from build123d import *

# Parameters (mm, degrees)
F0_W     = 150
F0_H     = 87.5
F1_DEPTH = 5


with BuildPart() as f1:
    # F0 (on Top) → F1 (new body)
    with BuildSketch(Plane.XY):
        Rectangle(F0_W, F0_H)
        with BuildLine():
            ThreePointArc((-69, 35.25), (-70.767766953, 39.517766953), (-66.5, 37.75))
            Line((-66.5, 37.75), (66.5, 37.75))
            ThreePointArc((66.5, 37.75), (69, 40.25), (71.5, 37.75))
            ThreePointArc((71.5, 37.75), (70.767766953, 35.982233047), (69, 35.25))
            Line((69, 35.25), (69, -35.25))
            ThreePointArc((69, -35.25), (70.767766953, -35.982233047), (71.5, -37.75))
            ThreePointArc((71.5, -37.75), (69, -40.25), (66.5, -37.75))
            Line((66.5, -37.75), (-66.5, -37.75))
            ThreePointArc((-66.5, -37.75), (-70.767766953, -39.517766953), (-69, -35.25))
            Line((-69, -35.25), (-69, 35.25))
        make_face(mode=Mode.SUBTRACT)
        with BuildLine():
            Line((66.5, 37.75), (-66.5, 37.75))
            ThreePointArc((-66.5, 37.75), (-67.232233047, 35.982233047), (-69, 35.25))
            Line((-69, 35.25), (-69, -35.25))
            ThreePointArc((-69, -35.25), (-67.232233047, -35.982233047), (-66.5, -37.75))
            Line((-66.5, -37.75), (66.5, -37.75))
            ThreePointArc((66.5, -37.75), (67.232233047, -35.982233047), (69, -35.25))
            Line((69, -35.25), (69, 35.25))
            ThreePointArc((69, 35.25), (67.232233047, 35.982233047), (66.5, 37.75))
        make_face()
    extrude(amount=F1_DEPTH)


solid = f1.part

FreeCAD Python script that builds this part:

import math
import FreeCAD as App
import Part
import Sketcher
from FreeCAD import Vector
Q = App.Units.Quantity

doc = App.newDocument("Part")
body = doc.addObject("PartDesign::Body", "Body")

# Sketch on XY plane
sketch1 = body.newObject("Sketcher::SketchObject", "Sketch")
sketch1.AttachmentSupport = (doc.getObject("XY_Plane"), [""])
sketch1.MapMode = "FlatFace"
sketch1.addGeometry([
    Part.LineSegment(Vector(-75, 43.8, 0), Vector(-75, -43.8, 0)),  # 0
    Part.LineSegment(Vector(-75, -43.8, 0), Vector(75, -43.8, 0)),  # 1
    Part.LineSegment(Vector(75, -43.8, 0), Vector(75, 43.8, 0)),  # 2
    Part.LineSegment(Vector(75, 43.8, 0), Vector(-75, 43.8, 0)),  # 3
    Part.ArcOfCircle(Part.Circle(Vector(-69, -37.8, 0), Vector(0, 0, 1), 2.5), math.radians(90), math.radians(360)),  # 4
    Part.ArcOfCircle(Part.Circle(Vector(-69, -37.8, 0), Vector(0, 0, 1), 2.5), math.radians(0), math.radians(90)),  # 5
    Part.ArcOfCircle(Part.Circle(Vector(69, -37.8, 0), Vector(0, 0, 1), 2.5), math.radians(180), math.radians(360)),  # 6
    Part.ArcOfCircle(Part.Circle(Vector(69, -37.8, 0), Vector(0, 0, 1), 2.5), math.radians(90), math.radians(180)),  # 7
    Part.ArcOfCircle(Part.Circle(Vector(69, -37.8, 0), Vector(0, 0, 1), 2.5), math.radians(0), math.radians(90)),  # 8
    Part.ArcOfCircle(Part.Circle(Vector(69, 37.8, 0), Vector(0, 0, 1), 2.5), math.radians(-90), math.radians(0)),  # 9
    Part.ArcOfCircle(Part.Circle(Vector(69, 37.8, 0), Vector(0, 0, 1), 2.5), math.radians(180), math.radians(270)),  # 10
    Part.ArcOfCircle(Part.Circle(Vector(69, 37.8, 0), Vector(0, 0, 1), 2.5), math.radians(0), math.radians(180)),  # 11
    Part.ArcOfCircle(Part.Circle(Vector(-69, 37.8, 0), Vector(0, 0, 1), 2.5), math.radians(0), math.radians(270)),  # 12
    Part.ArcOfCircle(Part.Circle(Vector(-69, 37.8, 0), Vector(0, 0, 1), 2.5), math.radians(-90), math.radians(0)),  # 13
], False)
sketch1.addConstraint([
    Sketcher.Constraint("Coincident", 0, 2, 1, 1),
    Sketcher.Constraint("Coincident", 1, 2, 2, 1),
    Sketcher.Constraint("Coincident", 2, 2, 3, 1),
    Sketcher.Constraint("Coincident", 3, 2, 0, 1),
    Sketcher.Constraint("Tangent", 4, 1, 5, 2),
    Sketcher.Constraint("Coincident", 5, 1, 4, 2),
    Sketcher.Constraint("Tangent", 6, 1, 7, 2),
    Sketcher.Constraint("Tangent", 7, 1, 8, 2),
    Sketcher.Constraint("Tangent", 8, 1, 6, 2),
    Sketcher.Constraint("Tangent", 9, 1, 10, 2),
    Sketcher.Constraint("Tangent", 10, 1, 11, 2),
    Sketcher.Constraint("Tangent", 11, 1, 9, 2),
    Sketcher.Constraint("Tangent", 12, 1, 13, 2),
    Sketcher.Constraint("Coincident", 13, 1, 12, 2),
    Sketcher.Constraint("Vertical", 0),
    Sketcher.Constraint("Horizontal", 1),
    Sketcher.Constraint("Vertical", 2),
    Sketcher.Constraint("Horizontal", 3),
    Sketcher.Constraint("Equal", 5, 6),
    Sketcher.Constraint("Equal", 8, 9),
    Sketcher.Constraint("Equal", 11, 12),
    Sketcher.Constraint("Symmetric", 4, 3, 9, 3, -1, 1),
    Sketcher.Constraint("Symmetric", 6, 3, 12, 3, -1, 1),
    Sketcher.Constraint("Symmetric", 0, 2, 2, 2, -1, 1),
    Sketcher.Constraint("Symmetric", 4, 3, 6, 3, -2),
    Sketcher.Constraint("Horizontal", 8, 3, 5, 1),
    Sketcher.Constraint("Horizontal", 5, 1, 6, 1),
    Sketcher.Constraint("Horizontal", 6, 1, 8, 1),
    Sketcher.Constraint("Horizontal", 13, 3, 10, 1),
    Sketcher.Constraint("Horizontal", 10, 1, 11, 1),
    Sketcher.Constraint("Horizontal", 11, 1, 12, 1),
    Sketcher.Constraint("Vertical", 13, 3, 4, 1),
    Sketcher.Constraint("Vertical", 11, 3, 7, 1),
    Sketcher.Constraint("Vertical", 7, 1, 9, 1),
    Sketcher.Constraint("Vertical", 4, 1, 13, 1),
    Sketcher.Constraint("Radius", 4, Q("2.5 mm")),
    Sketcher.Constraint("DistanceX", 1, 1, 1, 2, Q("150 mm")),
    Sketcher.Constraint("DistanceY", 0, 2, 0, 1, Q("87.5 mm")),
    Sketcher.Constraint("DistanceX", 4, 3, -1, 1, Q("69 mm")),
    Sketcher.Constraint("DistanceY", 0, 2, 4, 3, Q("6 mm")),
])
pad1 = body.newObject("PartDesign::Pad", "Pad")
pad1.Profile = sketch1
pad1.Length = 5

doc.recompute()
